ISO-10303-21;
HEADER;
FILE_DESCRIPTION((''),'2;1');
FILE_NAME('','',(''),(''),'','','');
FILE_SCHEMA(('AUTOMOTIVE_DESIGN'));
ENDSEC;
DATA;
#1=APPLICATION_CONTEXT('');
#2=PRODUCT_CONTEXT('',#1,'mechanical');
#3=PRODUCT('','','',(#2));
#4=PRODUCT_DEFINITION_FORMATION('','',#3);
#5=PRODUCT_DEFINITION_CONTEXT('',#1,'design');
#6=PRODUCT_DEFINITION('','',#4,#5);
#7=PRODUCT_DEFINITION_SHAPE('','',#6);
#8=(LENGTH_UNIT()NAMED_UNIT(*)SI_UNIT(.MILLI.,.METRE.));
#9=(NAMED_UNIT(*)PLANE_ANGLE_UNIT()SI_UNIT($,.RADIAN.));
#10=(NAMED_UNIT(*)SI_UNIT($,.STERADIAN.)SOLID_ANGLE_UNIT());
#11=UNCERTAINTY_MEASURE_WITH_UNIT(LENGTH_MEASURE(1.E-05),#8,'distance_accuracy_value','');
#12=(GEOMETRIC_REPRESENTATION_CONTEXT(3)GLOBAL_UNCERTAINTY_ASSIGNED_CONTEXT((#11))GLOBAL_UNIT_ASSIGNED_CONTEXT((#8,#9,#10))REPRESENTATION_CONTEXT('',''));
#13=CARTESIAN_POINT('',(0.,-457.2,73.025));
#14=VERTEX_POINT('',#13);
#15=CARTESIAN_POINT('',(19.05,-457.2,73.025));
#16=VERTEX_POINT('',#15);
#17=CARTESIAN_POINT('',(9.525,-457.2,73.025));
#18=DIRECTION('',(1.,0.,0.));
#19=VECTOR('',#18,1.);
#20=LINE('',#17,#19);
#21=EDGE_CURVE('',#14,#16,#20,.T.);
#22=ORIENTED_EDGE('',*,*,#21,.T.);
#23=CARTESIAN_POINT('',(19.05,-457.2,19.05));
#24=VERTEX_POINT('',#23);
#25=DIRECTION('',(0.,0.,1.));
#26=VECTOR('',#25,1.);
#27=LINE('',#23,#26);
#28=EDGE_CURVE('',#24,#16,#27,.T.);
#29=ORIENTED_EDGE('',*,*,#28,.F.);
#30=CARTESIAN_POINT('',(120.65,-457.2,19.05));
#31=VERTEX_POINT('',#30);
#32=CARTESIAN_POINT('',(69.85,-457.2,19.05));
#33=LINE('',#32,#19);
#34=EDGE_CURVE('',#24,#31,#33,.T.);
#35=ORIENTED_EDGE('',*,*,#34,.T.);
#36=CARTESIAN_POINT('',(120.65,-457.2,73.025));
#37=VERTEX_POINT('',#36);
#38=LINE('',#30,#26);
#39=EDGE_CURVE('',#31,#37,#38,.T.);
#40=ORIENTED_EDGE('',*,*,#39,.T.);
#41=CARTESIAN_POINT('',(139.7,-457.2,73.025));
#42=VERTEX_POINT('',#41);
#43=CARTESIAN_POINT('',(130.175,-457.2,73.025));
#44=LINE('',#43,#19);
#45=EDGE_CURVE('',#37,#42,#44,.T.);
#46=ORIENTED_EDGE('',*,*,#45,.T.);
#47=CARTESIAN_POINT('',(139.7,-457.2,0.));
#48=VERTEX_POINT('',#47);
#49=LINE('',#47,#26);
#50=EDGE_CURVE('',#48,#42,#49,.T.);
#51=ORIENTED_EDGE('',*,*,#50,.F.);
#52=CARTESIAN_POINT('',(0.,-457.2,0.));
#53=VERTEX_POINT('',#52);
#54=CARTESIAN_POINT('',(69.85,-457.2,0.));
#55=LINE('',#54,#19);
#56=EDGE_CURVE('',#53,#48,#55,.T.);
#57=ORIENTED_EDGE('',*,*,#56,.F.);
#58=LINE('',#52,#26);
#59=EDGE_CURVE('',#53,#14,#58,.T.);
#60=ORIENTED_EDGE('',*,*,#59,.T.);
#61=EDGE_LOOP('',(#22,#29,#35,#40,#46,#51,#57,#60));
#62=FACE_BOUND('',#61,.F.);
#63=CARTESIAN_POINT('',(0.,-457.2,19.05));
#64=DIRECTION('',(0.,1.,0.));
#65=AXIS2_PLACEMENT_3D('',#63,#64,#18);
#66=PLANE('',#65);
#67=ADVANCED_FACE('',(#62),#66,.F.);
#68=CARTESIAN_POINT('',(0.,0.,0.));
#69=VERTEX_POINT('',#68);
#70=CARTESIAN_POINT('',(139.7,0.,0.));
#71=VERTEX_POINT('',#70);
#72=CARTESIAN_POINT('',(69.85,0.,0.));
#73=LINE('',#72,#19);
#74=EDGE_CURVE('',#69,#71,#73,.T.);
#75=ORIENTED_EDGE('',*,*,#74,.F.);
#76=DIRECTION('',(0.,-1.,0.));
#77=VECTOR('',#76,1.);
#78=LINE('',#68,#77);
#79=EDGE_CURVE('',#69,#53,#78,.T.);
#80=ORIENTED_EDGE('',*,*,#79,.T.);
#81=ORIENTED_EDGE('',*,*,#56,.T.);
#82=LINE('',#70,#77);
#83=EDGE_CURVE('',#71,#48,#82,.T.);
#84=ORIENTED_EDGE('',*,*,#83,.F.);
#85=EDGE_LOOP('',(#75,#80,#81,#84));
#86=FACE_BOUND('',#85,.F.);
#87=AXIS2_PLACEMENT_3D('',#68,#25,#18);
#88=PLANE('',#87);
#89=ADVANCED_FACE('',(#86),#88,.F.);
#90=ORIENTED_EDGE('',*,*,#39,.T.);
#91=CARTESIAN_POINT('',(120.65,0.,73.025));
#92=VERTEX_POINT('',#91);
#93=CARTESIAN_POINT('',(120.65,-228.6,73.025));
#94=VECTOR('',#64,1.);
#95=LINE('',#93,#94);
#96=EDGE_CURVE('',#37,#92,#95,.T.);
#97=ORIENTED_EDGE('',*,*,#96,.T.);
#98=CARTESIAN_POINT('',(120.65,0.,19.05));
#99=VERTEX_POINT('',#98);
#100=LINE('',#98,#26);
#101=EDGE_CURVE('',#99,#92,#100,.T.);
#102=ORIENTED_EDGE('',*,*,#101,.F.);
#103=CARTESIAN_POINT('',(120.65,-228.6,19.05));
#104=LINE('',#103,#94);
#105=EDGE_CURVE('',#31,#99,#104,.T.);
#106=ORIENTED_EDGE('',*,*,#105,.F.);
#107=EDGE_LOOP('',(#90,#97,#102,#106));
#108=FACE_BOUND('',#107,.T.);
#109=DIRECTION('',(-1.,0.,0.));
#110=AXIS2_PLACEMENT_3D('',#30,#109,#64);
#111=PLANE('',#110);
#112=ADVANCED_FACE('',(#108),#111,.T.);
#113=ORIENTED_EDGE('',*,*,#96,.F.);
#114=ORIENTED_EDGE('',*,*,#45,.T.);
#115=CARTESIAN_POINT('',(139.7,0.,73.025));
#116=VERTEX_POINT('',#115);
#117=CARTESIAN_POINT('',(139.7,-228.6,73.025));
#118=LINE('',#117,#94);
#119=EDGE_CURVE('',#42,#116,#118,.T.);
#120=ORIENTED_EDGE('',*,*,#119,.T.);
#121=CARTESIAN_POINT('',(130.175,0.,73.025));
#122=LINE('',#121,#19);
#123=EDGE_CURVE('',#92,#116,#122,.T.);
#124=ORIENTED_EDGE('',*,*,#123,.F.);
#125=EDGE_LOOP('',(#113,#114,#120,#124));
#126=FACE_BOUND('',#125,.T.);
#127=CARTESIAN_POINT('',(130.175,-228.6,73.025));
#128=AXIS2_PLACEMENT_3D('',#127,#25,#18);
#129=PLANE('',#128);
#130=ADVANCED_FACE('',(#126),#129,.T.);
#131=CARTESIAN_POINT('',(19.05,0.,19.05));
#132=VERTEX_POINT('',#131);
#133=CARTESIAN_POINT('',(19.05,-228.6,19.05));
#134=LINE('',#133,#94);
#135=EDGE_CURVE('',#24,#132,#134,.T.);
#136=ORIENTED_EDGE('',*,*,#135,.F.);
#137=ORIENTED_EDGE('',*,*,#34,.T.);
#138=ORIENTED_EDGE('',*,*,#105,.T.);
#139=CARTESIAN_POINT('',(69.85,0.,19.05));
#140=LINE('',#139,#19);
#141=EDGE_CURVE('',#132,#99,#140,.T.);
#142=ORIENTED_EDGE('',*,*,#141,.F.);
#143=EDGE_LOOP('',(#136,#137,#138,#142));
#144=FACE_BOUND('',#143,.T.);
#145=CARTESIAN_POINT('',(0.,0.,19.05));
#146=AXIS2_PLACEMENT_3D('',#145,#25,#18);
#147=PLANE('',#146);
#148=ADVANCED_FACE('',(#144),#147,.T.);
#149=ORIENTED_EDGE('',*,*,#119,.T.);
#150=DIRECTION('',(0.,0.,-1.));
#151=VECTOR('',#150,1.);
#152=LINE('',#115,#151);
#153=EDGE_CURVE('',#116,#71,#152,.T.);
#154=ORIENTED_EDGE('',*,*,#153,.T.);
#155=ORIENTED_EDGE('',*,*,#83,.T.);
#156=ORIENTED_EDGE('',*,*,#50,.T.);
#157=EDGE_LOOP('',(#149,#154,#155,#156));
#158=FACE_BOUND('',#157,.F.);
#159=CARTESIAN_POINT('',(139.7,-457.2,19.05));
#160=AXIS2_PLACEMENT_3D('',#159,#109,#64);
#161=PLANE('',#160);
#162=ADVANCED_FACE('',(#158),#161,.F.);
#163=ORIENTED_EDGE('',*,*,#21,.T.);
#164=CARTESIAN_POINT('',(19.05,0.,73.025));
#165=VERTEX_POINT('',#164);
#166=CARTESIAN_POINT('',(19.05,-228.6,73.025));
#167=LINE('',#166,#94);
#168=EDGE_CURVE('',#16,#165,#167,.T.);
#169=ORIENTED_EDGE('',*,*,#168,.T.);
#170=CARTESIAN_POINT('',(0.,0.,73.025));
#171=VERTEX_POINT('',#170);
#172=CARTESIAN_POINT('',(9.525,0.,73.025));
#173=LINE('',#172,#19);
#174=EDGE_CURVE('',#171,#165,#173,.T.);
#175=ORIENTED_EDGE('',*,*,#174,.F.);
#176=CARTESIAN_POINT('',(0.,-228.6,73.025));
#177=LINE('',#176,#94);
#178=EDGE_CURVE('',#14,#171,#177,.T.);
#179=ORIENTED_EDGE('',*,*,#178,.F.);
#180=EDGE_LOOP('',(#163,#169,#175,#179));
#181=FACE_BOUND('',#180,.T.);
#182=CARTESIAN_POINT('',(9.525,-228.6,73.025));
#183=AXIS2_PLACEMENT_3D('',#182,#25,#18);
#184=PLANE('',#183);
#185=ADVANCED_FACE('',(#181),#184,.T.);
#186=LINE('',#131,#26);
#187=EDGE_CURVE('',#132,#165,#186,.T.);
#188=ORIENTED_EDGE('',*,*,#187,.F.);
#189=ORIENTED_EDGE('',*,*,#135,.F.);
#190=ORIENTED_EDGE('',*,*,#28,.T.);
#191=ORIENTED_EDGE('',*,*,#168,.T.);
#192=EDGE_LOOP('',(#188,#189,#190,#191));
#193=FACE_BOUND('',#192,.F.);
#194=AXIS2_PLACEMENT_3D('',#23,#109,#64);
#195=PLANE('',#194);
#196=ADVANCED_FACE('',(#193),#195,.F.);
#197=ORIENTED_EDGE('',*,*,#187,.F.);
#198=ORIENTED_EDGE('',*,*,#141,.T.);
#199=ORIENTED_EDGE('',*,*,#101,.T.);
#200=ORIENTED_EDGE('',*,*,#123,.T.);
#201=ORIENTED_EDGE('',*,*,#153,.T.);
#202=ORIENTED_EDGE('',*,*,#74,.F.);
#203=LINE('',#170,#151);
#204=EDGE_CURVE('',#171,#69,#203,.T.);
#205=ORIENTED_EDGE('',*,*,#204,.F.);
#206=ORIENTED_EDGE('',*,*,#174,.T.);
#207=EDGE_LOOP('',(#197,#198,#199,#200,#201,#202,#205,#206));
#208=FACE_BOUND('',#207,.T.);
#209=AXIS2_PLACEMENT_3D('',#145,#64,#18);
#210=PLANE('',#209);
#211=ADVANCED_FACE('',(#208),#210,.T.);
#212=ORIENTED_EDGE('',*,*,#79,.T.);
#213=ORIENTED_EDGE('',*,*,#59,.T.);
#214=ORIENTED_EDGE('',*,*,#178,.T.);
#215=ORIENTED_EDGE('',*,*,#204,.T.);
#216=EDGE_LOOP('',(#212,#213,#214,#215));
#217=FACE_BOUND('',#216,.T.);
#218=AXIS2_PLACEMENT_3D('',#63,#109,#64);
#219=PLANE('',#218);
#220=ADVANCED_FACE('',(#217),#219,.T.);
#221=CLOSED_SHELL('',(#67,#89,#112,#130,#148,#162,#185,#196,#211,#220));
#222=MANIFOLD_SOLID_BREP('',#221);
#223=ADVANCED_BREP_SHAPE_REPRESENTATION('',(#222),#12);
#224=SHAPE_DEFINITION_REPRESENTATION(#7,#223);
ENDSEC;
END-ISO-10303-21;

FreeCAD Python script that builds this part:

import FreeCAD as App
import Part
import Sketcher
from FreeCAD import Vector
Q = App.Units.Quantity


def add_polygon(sketch, points):
    """Adds a closed chain of lines whose ends are joined by coincident constraints."""
    first, n = sketch.GeometryCount, len(points)
    for a, b in zip(points, points[1:] + points[:1]):
        sketch.addGeometry(Part.LineSegment(App.Vector(*a, 0), App.Vector(*b, 0)), False)
    for i in range(n):
        sketch.addConstraint(Sketcher.Constraint("Coincident", first + i, 2, first + (i + 1) % n, 1))

doc = App.newDocument("Part")
body = doc.addObject("PartDesign::Body", "Body")

sketch1 = body.newObject("Sketcher::SketchObject", "Sketch")
sketch1.AttachmentSupport = (doc.getObject("XZ_Plane"), [""])
sketch1.MapMode = "FlatFace"
add_polygon(sketch1, [(0, 19), (0, 0), (140, 0), (140, 19)])
sketch1.addConstraint(Sketcher.Constraint("Vertical", 0))
sketch1.addConstraint(Sketcher.Constraint("Horizontal", 1))
sketch1.addConstraint(Sketcher.Constraint("Vertical", 2))
sketch1.addConstraint(Sketcher.Constraint("Horizontal", 3))
sketch1.addConstraint(Sketcher.Constraint("Coincident", 0, 2, -1, 1))
sketch1.addConstraint(Sketcher.Constraint("DistanceX", 1, 1, 1, 2, Q("5.5 in")))
sketch1.addConstraint(Sketcher.Constraint("DistanceY", 0, 2, 0, 1, Q("0.75 in")))
pad1 = body.newObject("PartDesign::Pad", "Pad")
pad1.Profile = sketch1
pad1.Length = Q("18 in")

sketch2 = body.newObject("Sketcher::SketchObject", "Sketch001")
sketch2.AttachmentSupport = (doc.getObject("XY_Plane"), [""])
sketch2.MapMode = "FlatFace"
sketch2.AttachmentOffset = App.Placement(Vector(0, 0, 0.75 * 25.4), App.Rotation())
add_polygon(sketch2, [(121, 0), (121, -457), (140, -457), (140, 0)])
sketch2.addConstraint(Sketcher.Constraint("Vertical", 0))
sketch2.addConstraint(Sketcher.Constraint("Horizontal", 1))
sketch2.addConstraint(Sketcher.Constraint("Vertical", 2))
sketch2.addConstraint(Sketcher.Constraint("Horizontal", 3))
sketch2.addConstraint(Sketcher.Constraint("PointOnObject", 2, 2, -1))
sketch2.addConstraint(Sketcher.Constraint("DistanceY", 0, 2, 0, 1, Q("18 in")))
sketch2.addConstraint(Sketcher.Constraint("DistanceX", 1, 1, 1, 2, Q("0.75 in")))
sketch2.addConstraint(Sketcher.Constraint("DistanceX", -1, 1, 1, 2, Q("5.5 in")))
pad2 = body.newObject("PartDesign::Pad", "Pad001")
pad2.Profile = sketch2
pad2.Length = Q("2.125 in")

sketch3 = body.newObject("Sketcher::SketchObject", "Sketch002")
sketch3.AttachmentSupport = (doc.getObject("XY_Plane"), [""])
sketch3.MapMode = "FlatFace"
sketch3.AttachmentOffset = App.Placement(Vector(0, 0, 0.75 * 25.4), App.Rotation())
add_polygon(sketch3, [(0, 0), (0, -457), (19, -457), (19, 0)])
sketch3.addConstraint(Sketcher.Constraint("Vertical", 0))
sketch3.addConstraint(Sketcher.Constraint("Horizontal", 1))
sketch3.addConstraint(Sketcher.Constraint("Vertical", 2))
sketch3.addConstraint(Sketcher.Constraint("Horizontal", 3))
sketch3.addConstraint(Sketcher.Constraint("Coincident", 3, 2, -1, 1))
sketch3.addConstraint(Sketcher.Constraint("DistanceY", 0, 2, 0, 1, Q("18 in")))
sketch3.addConstraint(Sketcher.Constraint("DistanceX", 1, 1, 1, 2, Q("0.75 in")))
pad3 = body.newObject("PartDesign::Pad", "Pad002")
pad3.Profile = sketch3
pad3.Length = Q("2.125 in")

doc.recompute()
